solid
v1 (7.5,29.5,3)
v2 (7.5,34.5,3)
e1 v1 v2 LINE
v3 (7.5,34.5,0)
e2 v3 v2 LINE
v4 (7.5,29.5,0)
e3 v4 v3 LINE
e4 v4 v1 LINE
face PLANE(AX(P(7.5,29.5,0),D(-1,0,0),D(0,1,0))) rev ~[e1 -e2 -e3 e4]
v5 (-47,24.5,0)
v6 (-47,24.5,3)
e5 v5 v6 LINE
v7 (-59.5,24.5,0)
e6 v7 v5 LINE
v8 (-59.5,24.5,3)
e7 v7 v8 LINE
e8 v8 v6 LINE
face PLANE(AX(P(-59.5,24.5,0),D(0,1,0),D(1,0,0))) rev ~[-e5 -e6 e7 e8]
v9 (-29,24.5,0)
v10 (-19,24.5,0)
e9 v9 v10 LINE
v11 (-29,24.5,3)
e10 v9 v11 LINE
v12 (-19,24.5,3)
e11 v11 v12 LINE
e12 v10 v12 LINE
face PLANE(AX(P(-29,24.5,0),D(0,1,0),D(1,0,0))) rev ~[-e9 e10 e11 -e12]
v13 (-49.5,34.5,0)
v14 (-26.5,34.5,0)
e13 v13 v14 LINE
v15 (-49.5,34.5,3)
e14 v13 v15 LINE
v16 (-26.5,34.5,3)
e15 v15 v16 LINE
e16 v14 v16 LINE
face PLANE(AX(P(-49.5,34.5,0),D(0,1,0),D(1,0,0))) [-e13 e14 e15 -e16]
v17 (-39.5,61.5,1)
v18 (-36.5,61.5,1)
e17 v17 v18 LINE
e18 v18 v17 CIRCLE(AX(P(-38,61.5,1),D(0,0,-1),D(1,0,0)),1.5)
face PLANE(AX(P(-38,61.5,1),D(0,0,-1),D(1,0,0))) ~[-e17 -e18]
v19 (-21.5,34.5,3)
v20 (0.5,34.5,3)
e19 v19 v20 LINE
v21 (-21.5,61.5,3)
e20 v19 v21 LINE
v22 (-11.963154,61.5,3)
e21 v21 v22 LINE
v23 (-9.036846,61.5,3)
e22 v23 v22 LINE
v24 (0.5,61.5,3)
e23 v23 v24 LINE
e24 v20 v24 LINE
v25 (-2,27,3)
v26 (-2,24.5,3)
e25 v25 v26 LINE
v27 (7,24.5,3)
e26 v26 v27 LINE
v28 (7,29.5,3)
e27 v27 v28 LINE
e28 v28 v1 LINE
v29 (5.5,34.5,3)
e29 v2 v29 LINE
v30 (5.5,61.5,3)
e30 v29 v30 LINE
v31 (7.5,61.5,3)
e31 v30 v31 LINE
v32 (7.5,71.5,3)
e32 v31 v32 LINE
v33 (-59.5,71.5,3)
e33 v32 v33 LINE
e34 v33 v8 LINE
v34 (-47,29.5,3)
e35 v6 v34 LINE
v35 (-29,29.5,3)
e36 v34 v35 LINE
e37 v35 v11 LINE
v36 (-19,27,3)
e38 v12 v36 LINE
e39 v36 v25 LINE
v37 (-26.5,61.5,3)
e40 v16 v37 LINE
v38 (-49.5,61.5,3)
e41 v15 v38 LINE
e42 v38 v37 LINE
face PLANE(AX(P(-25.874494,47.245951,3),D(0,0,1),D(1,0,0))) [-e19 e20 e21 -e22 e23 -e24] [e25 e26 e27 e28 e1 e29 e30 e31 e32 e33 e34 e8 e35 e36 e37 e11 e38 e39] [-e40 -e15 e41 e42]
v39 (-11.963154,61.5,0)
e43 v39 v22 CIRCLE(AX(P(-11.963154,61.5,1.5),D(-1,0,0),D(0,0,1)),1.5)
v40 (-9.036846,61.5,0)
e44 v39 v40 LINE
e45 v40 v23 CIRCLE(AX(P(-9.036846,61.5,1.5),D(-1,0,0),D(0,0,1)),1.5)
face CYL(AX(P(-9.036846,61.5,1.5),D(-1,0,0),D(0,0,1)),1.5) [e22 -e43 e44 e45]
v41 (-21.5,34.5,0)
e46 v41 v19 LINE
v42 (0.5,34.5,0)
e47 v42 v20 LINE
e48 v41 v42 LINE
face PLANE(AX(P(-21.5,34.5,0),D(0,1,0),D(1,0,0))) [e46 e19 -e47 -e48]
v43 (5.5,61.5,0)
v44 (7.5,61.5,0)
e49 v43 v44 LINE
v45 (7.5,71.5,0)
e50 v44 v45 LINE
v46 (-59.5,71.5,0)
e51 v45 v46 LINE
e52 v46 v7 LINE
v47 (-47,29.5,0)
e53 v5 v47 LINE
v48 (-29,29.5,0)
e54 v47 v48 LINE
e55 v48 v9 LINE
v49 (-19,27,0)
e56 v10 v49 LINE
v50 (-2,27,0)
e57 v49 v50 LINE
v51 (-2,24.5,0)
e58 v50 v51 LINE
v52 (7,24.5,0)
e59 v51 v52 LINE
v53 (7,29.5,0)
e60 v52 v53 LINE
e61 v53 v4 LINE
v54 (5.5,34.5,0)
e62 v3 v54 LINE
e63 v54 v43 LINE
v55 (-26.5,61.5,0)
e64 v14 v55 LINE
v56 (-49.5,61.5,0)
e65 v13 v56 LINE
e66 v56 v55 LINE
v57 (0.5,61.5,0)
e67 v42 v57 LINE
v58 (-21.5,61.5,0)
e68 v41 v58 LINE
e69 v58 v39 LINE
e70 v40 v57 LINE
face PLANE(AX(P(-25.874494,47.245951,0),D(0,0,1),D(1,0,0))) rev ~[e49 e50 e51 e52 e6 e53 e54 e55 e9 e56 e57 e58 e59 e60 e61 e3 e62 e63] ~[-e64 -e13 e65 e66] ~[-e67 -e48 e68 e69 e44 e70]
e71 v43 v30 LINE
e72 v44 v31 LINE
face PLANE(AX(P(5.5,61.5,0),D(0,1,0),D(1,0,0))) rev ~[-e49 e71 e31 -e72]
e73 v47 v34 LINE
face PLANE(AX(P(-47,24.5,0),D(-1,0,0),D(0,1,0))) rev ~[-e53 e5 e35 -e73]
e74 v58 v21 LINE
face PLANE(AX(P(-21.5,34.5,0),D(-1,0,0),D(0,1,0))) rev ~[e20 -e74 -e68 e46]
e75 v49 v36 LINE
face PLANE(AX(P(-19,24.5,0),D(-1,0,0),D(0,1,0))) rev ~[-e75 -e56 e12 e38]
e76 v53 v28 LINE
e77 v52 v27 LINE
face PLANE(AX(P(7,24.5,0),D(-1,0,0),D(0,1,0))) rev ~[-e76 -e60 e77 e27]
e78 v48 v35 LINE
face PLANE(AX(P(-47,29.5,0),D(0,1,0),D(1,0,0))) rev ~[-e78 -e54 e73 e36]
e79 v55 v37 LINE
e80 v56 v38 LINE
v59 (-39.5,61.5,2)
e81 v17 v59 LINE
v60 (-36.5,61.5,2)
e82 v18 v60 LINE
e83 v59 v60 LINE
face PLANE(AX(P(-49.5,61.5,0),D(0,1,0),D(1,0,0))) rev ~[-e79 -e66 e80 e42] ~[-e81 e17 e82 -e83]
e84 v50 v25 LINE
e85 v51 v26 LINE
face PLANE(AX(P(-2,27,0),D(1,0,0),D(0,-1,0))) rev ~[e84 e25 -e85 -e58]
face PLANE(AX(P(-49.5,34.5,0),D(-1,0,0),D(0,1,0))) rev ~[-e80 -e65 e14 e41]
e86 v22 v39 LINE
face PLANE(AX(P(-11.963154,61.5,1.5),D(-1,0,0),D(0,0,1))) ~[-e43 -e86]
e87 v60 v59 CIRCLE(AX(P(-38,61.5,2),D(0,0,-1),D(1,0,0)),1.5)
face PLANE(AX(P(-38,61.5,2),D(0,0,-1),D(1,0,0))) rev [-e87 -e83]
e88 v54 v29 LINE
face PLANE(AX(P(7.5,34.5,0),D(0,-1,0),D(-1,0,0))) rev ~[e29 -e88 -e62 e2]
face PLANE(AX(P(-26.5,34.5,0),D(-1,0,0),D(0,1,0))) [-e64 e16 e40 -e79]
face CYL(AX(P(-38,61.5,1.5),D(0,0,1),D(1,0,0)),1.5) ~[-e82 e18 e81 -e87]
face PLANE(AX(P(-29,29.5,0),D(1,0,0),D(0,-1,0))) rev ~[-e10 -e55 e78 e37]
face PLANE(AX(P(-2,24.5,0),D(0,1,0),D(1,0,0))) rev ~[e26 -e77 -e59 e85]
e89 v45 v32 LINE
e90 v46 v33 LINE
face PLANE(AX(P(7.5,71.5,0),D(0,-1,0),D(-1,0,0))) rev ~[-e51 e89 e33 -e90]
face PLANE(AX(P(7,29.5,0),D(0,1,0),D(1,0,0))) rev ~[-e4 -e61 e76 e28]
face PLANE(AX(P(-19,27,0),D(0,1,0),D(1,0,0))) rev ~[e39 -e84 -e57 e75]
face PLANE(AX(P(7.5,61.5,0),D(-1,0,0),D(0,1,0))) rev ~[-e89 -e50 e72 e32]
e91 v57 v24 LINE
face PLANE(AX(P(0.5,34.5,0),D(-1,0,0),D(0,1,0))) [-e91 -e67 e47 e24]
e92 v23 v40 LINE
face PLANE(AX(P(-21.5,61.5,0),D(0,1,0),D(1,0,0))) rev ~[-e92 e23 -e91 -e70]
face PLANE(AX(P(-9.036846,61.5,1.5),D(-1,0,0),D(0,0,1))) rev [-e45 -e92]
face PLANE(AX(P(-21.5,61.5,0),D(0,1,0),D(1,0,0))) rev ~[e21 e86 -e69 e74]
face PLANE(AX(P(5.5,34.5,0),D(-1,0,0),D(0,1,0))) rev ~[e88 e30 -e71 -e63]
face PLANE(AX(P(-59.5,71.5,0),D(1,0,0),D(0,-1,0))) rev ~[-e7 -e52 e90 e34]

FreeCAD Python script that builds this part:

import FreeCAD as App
import Part
import Sketcher
from FreeCAD import Vector
Q = App.Units.Quantity

doc = App.newDocument("Part")
params = doc.addObject("Spreadsheet::Sheet", "Params")
for row, (alias, value) in enumerate([
    ("sketch1_width", "18 mm"),
    ("sketch1_width2", "10 mm"),
    ("sketch1_width3", "17 mm"),
    ("sketch1_width4", "9 mm"),
    ("sketch1_width5", "2 mm"),
    ("pad1_length", "3 mm"),
    ("sketch2_height", "1 mm"),
    ("sketch2_width", "1.5 mm"),
    ("revolution_angle", "360 deg"),
    ("sketch3_height", "1.5 mm"),
    ("revolution2_angle", "360 deg"),
], start=1):
    params.set(f"A{row}", alias)
    params.set(f"B{row}", "=" + value)
    params.setAlias(f"B{row}", alias)

body = doc.addObject("PartDesign::Body", "Body")

# Sketch on XY plane
sketch1 = body.newObject("Sketcher::SketchObject", "Sketch")
sketch1.AttachmentSupport = (doc.getObject("XY_Plane"), [""])
sketch1.MapMode = "FlatFace"
sketch1.addGeometry([
    Part.LineSegment(Vector(-59.5, 71.5, 0), Vector(-59.5, 24.5, 0)),  # 0
    Part.LineSegment(Vector(-59.5, 24.5, 0), Vector(-47, 24.5, 0)),  # 1
    Part.LineSegment(Vector(-47, 24.5, 0), Vector(-47, 29.5, 0)),  # 2
    Part.LineSegment(Vector(-47, 29.5, 0), Vector(-29, 29.5, 0)),  # 3
    Part.LineSegment(Vector(-29, 29.5, 0), Vector(-29, 24.5, 0)),  # 4
    Part.LineSegment(Vector(-29, 24.5, 0), Vector(-19, 24.5, 0)),  # 5
    Part.LineSegment(Vector(-19, 24.5, 0), Vector(-19, 27, 0)),  # 6
    Part.LineSegment(Vector(-19, 27, 0), Vector(-2, 27, 0)),  # 7
    Part.LineSegment(Vector(-2, 27, 0), Vector(-2, 24.5, 0)),  # 8
    Part.LineSegment(Vector(-2, 24.5, 0), Vector(7, 24.5, 0)),  # 9
    Part.LineSegment(Vector(7, 24.5, 0), Vector(7, 29.5, 0)),  # 10
    Part.LineSegment(Vector(7, 29.5, 0), Vector(7.5, 29.5, 0)),  # 11
    Part.LineSegment(Vector(7.5, 29.5, 0), Vector(7.5, 34.5, 0)),  # 12
    Part.LineSegment(Vector(7.5, 34.5, 0), Vector(5.5, 34.5, 0)),  # 13
    Part.LineSegment(Vector(5.5, 34.5, 0), Vector(5.5, 61.5, 0)),  # 14
    Part.LineSegment(Vector(5.5, 61.5, 0), Vector(7.5, 61.5, 0)),  # 15
    Part.LineSegment(Vector(7.5, 61.5, 0), Vector(7.5, 71.5, 0)),  # 16
    Part.LineSegment(Vector(7.5, 71.5, 0), Vector(-59.5, 71.5, 0)),  # 17
    Part.LineSegment(Vector(-26.5, 34.5, 0), Vector(-49.5, 34.5, 0)),  # 18
    Part.LineSegment(Vector(-49.5, 34.5, 0), Vector(-49.5, 61.5, 0)),  # 19
    Part.LineSegment(Vector(-49.5, 61.5, 0), Vector(-26.5, 61.5, 0)),  # 20
    Part.LineSegment(Vector(-26.5, 61.5, 0), Vector(-26.5, 34.5, 0)),  # 21
    Part.LineSegment(Vector(0.5, 34.5, 0), Vector(-21.5, 34.5, 0)),  # 22
    Part.LineSegment(Vector(-21.5, 34.5, 0), Vector(-21.5, 61.5, 0)),  # 23
    Part.LineSegment(Vector(-21.5, 61.5, 0), Vector(0.5, 61.5, 0)),  # 24
    Part.LineSegment(Vector(0.5, 61.5, 0), Vector(0.5, 34.5, 0)),  # 25
], False)
sketch1.addConstraint([
    Sketcher.Constraint("Coincident", 0, 2, 1, 1),
    Sketcher.Constraint("Coincident", 1, 2, 2, 1),
    Sketcher.Constraint("Coincident", 2, 2, 3, 1),
    Sketcher.Constraint("Coincident", 3, 2, 4, 1),
    Sketcher.Constraint("Coincident", 4, 2, 5, 1),
    Sketcher.Constraint("Coincident", 5, 2, 6, 1),
    Sketcher.Constraint("Coincident", 6, 2, 7, 1),
    Sketcher.Constraint("Coincident", 7, 2, 8, 1),
    Sketcher.Constraint("Coincident", 8, 2, 9, 1),
    Sketcher.Constraint("Coincident", 9, 2, 10, 1),
    Sketcher.Constraint("Coincident", 10, 2, 11, 1),
    Sketcher.Constraint("Coincident", 11, 2, 12, 1),
    Sketcher.Constraint("Coincident", 12, 2, 13, 1),
    Sketcher.Constraint("Coincident", 13, 2, 14, 1),
    Sketcher.Constraint("Coincident", 14, 2, 15, 1),
    Sketcher.Constraint("Coincident", 15, 2, 16, 1),
    Sketcher.Constraint("Coincident", 16, 2, 17, 1),
    Sketcher.Constraint("Coincident", 17, 2, 0, 1),
    Sketcher.Constraint("Coincident", 18, 2, 19, 1),
    Sketcher.Constraint("Coincident", 19, 2, 20, 1),
    Sketcher.Constraint("Coincident", 20, 2, 21, 1),
    Sketcher.Constraint("Coincident", 21, 2, 18, 1),
    Sketcher.Constraint("Coincident", 22, 2, 23, 1),
    Sketcher.Constraint("Coincident", 23, 2, 24, 1),
    Sketcher.Constraint("Coincident", 24, 2, 25, 1),
    Sketcher.Constraint("Coincident", 25, 2, 22, 1),
    Sketcher.Constraint("Vertical", 0),
    Sketcher.Constraint("Horizontal", 1),
    Sketcher.Constraint("Vertical", 2),
    Sketcher.Constraint("Horizontal", 3),
    Sketcher.Constraint("Vertical", 4),
    Sketcher.Constraint("Horizontal", 5),
    Sketcher.Constraint("Vertical", 6),
    Sketcher.Constraint("Horizontal", 7),
    Sketcher.Constraint("Vertical", 8),
    Sketcher.Constraint("Horizontal", 9),
    Sketcher.Constraint("Vertical", 10),
    Sketcher.Constraint("Horizontal", 11),
    Sketcher.Constraint("Vertical", 12),
    Sketcher.Constraint("Horizontal", 13),
    Sketcher.Constraint("Vertical", 14),
    Sketcher.Constraint("Horizontal", 15),
    Sketcher.Constraint("Vertical", 16),
    Sketcher.Constraint("Horizontal", 17),
    Sketcher.Constraint("Horizontal", 18),
    Sketcher.Constraint("Vertical", 19),
    Sketcher.Constraint("Horizontal", 20),
    Sketcher.Constraint("Vertical", 21),
    Sketcher.Constraint("Horizontal", 22),
    Sketcher.Constraint("Vertical", 23),
    Sketcher.Constraint("Horizontal", 24),
    Sketcher.Constraint("Vertical", 25),
    Sketcher.Constraint("Horizontal", 1, 2, 4, 2),
    Sketcher.Constraint("Horizontal", 5, 2, 8, 2),
    Sketcher.Constraint("Horizontal", 3, 2, 10, 2),
    Sketcher.Constraint("Horizontal", 13, 2, 18, 2),
    Sketcher.Constraint("Horizontal", 15, 2, 19, 2),
    Sketcher.Constraint("Horizontal", 21, 2, 22, 2),
    Sketcher.Constraint("Horizontal", 20, 2, 23, 2),
    Sketcher.Constraint("Vertical", 12, 2, 15, 2),
    Sketcher.Constraint("Equal", 10, 12),
    Sketcher.Constraint("Equal", 5, 16),
    Sketcher.Constraint("DistanceX", 3, 1, 3, 2, Q("18 mm")),
    Sketcher.Constraint("DistanceX", 5, 1, 5, 2, Q("10 mm")),
    Sketcher.Constraint("DistanceX", 7, 1, 7, 2, Q("17 mm")),
    Sketcher.Constraint("DistanceX", 9, 1, 9, 2, Q("9 mm")),
    Sketcher.Constraint("DistanceX", 13, 2, 13, 1, Q("2 mm")),
    Sketcher.Constraint("DistanceX", 17, 2, 17, 1, Q("67 mm")),
    Sketcher.Constraint("DistanceX", 18, 2, 18, 1, Q("23 mm")),
    Sketcher.Constraint("DistanceX", 22, 2, 22, 1, Q("22 mm")),
    Sketcher.Constraint("DistanceY", 0, 2, 0, 1, Q("47 mm")),
    Sketcher.Constraint("DistanceY", 2, 1, 2, 2, Q("5 mm")),
    Sketcher.Constraint("DistanceX", 1, 1, 1, 2, Q("12.5 mm")),
    Sketcher.Constraint("DistanceY", 6, 1, 6, 2, Q("2.5 mm")),
    Sketcher.Constraint("DistanceX", 1, 2, -1, 1, Q("47 mm")),
    Sketcher.Constraint("DistanceY", -1, 1, 6, 2, Q("27 mm")),
    Sketcher.Constraint("DistanceX", 0, 2, 18, 2, Q("10 mm")),
    Sketcher.Constraint("DistanceX", 21, 2, 22, 2, Q("5 mm")),
])
sketch1.setExpression("Constraints[62]", "Params.sketch1_width")
sketch1.setExpression("Constraints[63]", "Params.sketch1_width2")
sketch1.setExpression("Constraints[64]", "Params.sketch1_width3")
sketch1.setExpression("Constraints[65]", "Params.sketch1_width4")
sketch1.setExpression("Constraints[66]", "Params.sketch1_width5")
pad1 = body.newObject("PartDesign::Pad", "Pad")
pad1.Profile = sketch1
pad1.setExpression("Length", "Params.pad1_length")

# Sketch on XZ plane
sketch2 = body.newObject("Sketcher::SketchObject", "Sketch001")
sketch2.AttachmentSupport = (doc.getObject("XZ_Plane"), [""])
sketch2.MapMode = "FlatFace"
sketch2.AttachmentOffset = App.Placement(Vector(0, 0, -61.5), App.Rotation())
sketch2.addGeometry([
    Part.LineSegment(Vector(-38, 2, 0), Vector(-38, 1, 0)),
    Part.LineSegment(Vector(-38, 1, 0), Vector(-36.5, 1, 0)),
    Part.LineSegment(Vector(-36.5, 1, 0), Vector(-36.5, 2, 0)),
    Part.LineSegment(Vector(-36.5, 2, 0), Vector(-38, 2, 0)),
], False)
sketch2.addGeometry(Part.LineSegment(Vector(-38, 2, 0), Vector(-38, 1, 0)), True)  # axis
sketch2.addConstraint([
    Sketcher.Constraint("Coincident", 0, 2, 1, 1),
    Sketcher.Constraint("Coincident", 1, 2, 2, 1),
    Sketcher.Constraint("Coincident", 2, 2, 3, 1),
    Sketcher.Constraint("Coincident", 3, 2, 0, 1),
    Sketcher.Constraint("Vertical", 0),
    Sketcher.Constraint("Horizontal", 1),
    Sketcher.Constraint("Vertical", 2),
    Sketcher.Constraint("Horizontal", 3),
    Sketcher.Constraint("Vertical", 4),
    Sketcher.Constraint("Coincident", 4, 1, 3, 2),
    Sketcher.Constraint("Horizontal", 1, 2, 4, 2),
    Sketcher.Constraint("DistanceY", 0, 2, 0, 1, Q("1 mm")),
    Sketcher.Constraint("DistanceX", 1, 1, 1, 2, Q("1.5 mm")),
    Sketcher.Constraint("DistanceX", 0, 2, -1, 1, Q("38 mm")),
    Sketcher.Constraint("DistanceY", -1, 1, 0, 2, Q("1 mm")),
])
sketch2.setExpression("Constraints[11]", "Params.sketch2_height")
sketch2.setExpression("Constraints[12]", "Params.sketch2_width")
revolution = body.newObject("PartDesign::Revolution", "Revolution")
revolution.Profile = sketch2
revolution.ReferenceAxis = (sketch2, ["Axis0"])
revolution.setExpression("Angle", "Params.revolution_angle")

# Sketch on XZ plane
sketch3 = body.newObject("Sketcher::SketchObject", "Sketch002")
sketch3.AttachmentSupport = (doc.getObject("XZ_Plane"), [""])
sketch3.MapMode = "FlatFace"
sketch3.AttachmentOffset = App.Placement(Vector(0, 0, -61.5), App.Rotation())
sketch3.addGeometry([
    Part.LineSegment(Vector(-12, 3, 0), Vector(-12, 1.5, 0)),
    Part.LineSegment(Vector(-12, 1.5, 0), Vector(-9, 1.5, 0)),
    Part.LineSegment(Vector(-9, 1.5, 0), Vector(-9, 3, 0)),
    Part.LineSegment(Vector(-9, 3, 0), Vector(-12, 3, 0)),
], False)
sketch3.addGeometry(Part.LineSegment(Vector(-9, 1.5, 0), Vector(-12, 1.5, 0)), True)  # axis
sketch3.addConstraint([
    Sketcher.Constraint("Coincident", 0, 2, 1, 1),
    Sketcher.Constraint("Coincident", 1, 2, 2, 1),
    Sketcher.Constraint("Coincident", 2, 2, 3, 1),
    Sketcher.Constraint("Coincident", 3, 2, 0, 1),
    Sketcher.Constraint("Vertical", 0),
    Sketcher.Constraint("Horizontal", 1),
    Sketcher.Constraint("Vertical", 2),
    Sketcher.Constraint("Horizontal", 3),
    Sketcher.Constraint("Horizontal", 4),
    Sketcher.Constraint("Coincident", 4, 1, 1, 2),
    Sketcher.Constraint("Vertical", 3, 2, 4, 2),
    Sketcher.Constraint("DistanceY", 0, 2, 0, 1, Q("1.5 mm")),
    Sketcher.Constraint("DistanceY", -1, 1, 2, 2, Q("3 mm")),
    Sketcher.Constraint("DistanceX", 1, 1, 1, 2, Q("2.926308 mm")),
    Sketcher.Constraint("DistanceX", 0, 2, -1, 1, Q("11.963154 mm")),
])
sketch3.setExpression("Constraints[11]", "Params.sketch3_height")
revolution2 = body.newObject("PartDesign::Revolution", "Revolution001")
revolution2.Profile = sketch3
revolution2.ReferenceAxis = (sketch3, ["Axis0"])
revolution2.setExpression("Angle", "Params.revolution2_angle")

doc.recompute()
